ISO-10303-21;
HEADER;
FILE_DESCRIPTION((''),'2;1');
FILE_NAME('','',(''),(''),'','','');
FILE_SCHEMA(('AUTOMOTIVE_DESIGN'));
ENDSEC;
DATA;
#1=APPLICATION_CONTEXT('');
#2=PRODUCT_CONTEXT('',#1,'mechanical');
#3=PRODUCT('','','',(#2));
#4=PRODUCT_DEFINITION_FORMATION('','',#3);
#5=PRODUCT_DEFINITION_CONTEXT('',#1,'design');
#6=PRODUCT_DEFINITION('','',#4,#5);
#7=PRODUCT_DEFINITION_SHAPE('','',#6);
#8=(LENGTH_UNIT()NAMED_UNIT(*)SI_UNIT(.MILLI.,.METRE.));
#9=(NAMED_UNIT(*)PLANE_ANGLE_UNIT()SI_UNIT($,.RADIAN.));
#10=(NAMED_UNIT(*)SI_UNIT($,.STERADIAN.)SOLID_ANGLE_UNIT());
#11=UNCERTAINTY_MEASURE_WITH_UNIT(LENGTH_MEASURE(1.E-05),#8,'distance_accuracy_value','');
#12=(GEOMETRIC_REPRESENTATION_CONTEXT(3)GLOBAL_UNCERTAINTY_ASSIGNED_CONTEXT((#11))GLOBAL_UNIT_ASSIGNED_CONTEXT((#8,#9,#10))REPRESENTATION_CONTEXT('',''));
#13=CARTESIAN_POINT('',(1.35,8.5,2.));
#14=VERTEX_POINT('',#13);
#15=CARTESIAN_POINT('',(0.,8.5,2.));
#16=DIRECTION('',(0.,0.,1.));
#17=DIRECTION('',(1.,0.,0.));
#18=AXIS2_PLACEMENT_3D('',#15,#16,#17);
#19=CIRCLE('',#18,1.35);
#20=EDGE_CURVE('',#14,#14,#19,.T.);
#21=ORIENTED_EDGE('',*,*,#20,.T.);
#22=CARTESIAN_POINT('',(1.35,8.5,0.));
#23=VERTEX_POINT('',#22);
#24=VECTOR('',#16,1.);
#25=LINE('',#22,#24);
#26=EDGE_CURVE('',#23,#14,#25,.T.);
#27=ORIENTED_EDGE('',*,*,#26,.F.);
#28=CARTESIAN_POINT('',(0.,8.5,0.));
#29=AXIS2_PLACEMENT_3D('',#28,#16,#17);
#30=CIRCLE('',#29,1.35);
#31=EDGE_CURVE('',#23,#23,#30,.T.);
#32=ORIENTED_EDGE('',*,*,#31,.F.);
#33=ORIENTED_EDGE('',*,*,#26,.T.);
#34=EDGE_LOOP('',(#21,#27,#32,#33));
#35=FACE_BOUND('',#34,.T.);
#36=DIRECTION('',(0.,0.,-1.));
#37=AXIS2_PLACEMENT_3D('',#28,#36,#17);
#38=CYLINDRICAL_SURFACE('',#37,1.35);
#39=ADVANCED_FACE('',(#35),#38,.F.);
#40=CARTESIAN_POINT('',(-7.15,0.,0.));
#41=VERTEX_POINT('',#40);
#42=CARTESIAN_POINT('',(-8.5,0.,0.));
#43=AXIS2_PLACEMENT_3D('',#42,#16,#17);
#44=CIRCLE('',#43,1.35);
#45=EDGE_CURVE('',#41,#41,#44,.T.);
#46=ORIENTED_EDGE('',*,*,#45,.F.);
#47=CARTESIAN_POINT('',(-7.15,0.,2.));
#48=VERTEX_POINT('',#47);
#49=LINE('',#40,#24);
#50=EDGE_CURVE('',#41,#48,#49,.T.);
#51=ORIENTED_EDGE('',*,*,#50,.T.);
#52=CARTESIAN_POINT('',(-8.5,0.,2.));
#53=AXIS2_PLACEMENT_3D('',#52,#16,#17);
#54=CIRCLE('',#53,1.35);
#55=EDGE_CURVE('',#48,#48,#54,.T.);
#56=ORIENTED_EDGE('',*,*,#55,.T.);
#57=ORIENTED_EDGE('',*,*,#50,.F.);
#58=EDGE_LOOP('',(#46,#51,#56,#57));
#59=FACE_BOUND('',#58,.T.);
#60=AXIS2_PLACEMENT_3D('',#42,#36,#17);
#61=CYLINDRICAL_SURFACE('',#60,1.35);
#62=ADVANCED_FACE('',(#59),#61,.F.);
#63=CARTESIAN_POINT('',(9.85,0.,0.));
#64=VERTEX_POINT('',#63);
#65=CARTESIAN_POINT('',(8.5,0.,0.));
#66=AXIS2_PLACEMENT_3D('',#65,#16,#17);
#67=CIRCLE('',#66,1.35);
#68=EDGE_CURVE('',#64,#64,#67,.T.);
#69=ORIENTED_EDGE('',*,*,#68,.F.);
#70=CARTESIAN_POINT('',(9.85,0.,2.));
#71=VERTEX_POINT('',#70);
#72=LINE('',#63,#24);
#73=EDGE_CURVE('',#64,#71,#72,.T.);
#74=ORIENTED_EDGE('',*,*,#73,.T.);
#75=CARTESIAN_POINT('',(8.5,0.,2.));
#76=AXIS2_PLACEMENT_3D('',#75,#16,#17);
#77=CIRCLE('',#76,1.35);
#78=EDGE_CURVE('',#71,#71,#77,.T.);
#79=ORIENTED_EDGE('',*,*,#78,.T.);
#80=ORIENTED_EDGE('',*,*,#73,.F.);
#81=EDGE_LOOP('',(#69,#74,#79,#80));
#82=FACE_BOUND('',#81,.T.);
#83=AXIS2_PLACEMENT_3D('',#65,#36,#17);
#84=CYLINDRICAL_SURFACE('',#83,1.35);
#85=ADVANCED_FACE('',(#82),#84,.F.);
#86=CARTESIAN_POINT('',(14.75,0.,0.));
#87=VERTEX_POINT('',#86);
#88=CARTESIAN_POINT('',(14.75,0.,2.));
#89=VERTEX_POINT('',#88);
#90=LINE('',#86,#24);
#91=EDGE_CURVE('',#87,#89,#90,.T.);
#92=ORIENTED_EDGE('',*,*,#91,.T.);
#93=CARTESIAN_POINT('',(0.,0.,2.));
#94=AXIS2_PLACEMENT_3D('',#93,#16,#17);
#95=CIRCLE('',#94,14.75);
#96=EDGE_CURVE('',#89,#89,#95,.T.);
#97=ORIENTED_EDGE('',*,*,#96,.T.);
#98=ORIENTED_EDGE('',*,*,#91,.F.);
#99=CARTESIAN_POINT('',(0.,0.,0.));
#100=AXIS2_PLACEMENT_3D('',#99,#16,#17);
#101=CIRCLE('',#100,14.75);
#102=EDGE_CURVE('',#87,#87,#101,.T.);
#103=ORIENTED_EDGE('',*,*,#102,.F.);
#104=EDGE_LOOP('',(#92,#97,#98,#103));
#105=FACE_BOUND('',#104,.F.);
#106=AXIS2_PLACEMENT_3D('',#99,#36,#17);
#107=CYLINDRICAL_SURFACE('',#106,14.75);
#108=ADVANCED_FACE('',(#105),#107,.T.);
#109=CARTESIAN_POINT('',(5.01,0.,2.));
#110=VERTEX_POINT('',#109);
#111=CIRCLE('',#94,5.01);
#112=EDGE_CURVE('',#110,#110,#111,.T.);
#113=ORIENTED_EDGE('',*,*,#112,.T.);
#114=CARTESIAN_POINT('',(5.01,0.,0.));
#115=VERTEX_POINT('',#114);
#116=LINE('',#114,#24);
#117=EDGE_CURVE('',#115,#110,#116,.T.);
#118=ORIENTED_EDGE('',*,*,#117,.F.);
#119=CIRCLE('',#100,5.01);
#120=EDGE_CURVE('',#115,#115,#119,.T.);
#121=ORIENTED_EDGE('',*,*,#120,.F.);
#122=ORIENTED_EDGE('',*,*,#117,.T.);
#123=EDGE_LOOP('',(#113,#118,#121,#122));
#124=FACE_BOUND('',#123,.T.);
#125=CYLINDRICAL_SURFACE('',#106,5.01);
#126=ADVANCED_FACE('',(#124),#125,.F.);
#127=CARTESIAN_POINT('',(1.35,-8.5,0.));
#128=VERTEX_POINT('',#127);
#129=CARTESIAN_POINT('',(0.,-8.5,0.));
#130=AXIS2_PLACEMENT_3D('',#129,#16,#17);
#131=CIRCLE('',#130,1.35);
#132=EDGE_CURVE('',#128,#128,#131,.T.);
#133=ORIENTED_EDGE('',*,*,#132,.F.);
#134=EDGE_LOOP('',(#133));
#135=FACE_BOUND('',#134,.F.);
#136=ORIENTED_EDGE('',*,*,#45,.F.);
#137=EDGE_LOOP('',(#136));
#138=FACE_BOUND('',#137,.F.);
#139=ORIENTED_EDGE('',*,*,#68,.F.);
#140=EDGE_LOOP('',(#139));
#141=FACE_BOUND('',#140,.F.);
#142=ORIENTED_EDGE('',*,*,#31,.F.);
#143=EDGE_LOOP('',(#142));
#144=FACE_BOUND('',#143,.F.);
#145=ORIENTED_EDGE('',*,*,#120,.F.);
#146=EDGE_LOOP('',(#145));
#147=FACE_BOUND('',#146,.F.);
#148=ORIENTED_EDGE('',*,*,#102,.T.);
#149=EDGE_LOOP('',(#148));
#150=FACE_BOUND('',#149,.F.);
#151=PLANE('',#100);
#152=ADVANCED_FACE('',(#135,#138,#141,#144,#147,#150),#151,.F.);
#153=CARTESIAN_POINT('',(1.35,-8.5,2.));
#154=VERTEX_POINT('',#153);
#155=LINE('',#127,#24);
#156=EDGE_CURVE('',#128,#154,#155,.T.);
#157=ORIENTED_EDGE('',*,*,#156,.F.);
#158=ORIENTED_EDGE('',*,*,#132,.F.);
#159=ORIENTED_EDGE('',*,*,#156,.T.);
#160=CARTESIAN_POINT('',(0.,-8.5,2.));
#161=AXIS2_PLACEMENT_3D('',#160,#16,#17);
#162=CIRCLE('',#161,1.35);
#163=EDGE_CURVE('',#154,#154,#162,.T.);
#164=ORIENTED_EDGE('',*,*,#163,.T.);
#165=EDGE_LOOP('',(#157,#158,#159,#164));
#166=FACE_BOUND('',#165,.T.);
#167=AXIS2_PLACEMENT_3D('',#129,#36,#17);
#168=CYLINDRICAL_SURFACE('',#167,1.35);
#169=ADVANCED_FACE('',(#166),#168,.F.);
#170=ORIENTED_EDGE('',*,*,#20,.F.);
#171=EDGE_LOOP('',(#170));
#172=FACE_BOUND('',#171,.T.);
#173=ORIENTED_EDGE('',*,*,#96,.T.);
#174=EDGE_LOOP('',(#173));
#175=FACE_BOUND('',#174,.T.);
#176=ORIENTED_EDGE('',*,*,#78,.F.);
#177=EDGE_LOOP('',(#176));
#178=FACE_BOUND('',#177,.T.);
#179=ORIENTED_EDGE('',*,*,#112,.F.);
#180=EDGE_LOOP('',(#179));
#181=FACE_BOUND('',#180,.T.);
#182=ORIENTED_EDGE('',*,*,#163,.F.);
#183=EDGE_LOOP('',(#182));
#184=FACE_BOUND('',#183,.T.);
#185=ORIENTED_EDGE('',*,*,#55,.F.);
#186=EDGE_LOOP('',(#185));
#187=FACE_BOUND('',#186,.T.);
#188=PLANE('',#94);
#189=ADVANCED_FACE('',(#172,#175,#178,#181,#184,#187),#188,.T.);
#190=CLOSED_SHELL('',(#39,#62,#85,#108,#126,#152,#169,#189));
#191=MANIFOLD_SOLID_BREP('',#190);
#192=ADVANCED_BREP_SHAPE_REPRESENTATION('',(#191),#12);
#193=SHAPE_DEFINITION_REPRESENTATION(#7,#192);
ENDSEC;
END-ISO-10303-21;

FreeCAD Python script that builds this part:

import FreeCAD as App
import Part
import Sketcher

doc = App.newDocument("Part")
body = doc.addObject("PartDesign::Body", "Body")

# Sketch on XY plane
sketch1 = body.newObject("Sketcher::SketchObject", "Sketch")
sketch1.AttachmentSupport = (doc.getObject("XY_Plane"), [""])
sketch1.MapMode = "FlatFace"
sketch1.addGeometry(Part.Circle(App.Vector(0, 0, 0), App.Vector(0, 0, 1), 14.75), False)
sketch1.addGeometry(Part.Circle(App.Vector(0, -8.5, 0), App.Vector(0, 0, 1), 1.35), False)
sketch1.addGeometry(Part.Circle(App.Vector(-8.5, 0, 0), App.Vector(0, 0, 1), 1.35), False)
sketch1.addGeometry(Part.Circle(App.Vector(0, 0, 0), App.Vector(0, 0, 1), 5.01), False)
sketch1.addGeometry(Part.Circle(App.Vector(8.5, 0, 0), App.Vector(0, 0, 1), 1.35), False)
sketch1.addGeometry(Part.Circle(App.Vector(0, 8.5, 0), App.Vector(0, 0, 1), 1.35), False)
sketch1.addConstraint(Sketcher.Constraint("Coincident", 0, 3, -1, 1))
sketch1.addConstraint(Sketcher.Constraint("Coincident", 3, 3, -1, 1))
sketch1.addConstraint(Sketcher.Constraint("Equal", 1, 2))
sketch1.addConstraint(Sketcher.Constraint("Equal", 2, 4))
sketch1.addConstraint(Sketcher.Constraint("Equal", 4, 5))
sketch1.addConstraint(Sketcher.Constraint("Symmetric", 2, 3, 4, 3, -1, 1))
sketch1.addConstraint(Sketcher.Constraint("Symmetric", 1, 3, 5, 3, -1, 1))
sketch1.addConstraint(Sketcher.Constraint("PointOnObject", 1, 3, -2))
sketch1.addConstraint(Sketcher.Constraint("PointOnObject", 2, 3, -1))
sketch1.addConstraint(Sketcher.Constraint("Diameter", 0, 29.5))
sketch1.addConstraint(Sketcher.Constraint("Diameter", 1, 2.7))
sketch1.addConstraint(Sketcher.Constraint("DistanceY", 1, 3, -1, 1, 8.5))
sketch1.addConstraint(Sketcher.Constraint("DistanceX", 2, 3, -1, 1, 8.5))
sketch1.addConstraint(Sketcher.Constraint("Diameter", 3, 10.02))
pad1 = body.newObject("PartDesign::Pad", "Pad")
pad1.Profile = sketch1
pad1.Length = 2

doc.recompute()
